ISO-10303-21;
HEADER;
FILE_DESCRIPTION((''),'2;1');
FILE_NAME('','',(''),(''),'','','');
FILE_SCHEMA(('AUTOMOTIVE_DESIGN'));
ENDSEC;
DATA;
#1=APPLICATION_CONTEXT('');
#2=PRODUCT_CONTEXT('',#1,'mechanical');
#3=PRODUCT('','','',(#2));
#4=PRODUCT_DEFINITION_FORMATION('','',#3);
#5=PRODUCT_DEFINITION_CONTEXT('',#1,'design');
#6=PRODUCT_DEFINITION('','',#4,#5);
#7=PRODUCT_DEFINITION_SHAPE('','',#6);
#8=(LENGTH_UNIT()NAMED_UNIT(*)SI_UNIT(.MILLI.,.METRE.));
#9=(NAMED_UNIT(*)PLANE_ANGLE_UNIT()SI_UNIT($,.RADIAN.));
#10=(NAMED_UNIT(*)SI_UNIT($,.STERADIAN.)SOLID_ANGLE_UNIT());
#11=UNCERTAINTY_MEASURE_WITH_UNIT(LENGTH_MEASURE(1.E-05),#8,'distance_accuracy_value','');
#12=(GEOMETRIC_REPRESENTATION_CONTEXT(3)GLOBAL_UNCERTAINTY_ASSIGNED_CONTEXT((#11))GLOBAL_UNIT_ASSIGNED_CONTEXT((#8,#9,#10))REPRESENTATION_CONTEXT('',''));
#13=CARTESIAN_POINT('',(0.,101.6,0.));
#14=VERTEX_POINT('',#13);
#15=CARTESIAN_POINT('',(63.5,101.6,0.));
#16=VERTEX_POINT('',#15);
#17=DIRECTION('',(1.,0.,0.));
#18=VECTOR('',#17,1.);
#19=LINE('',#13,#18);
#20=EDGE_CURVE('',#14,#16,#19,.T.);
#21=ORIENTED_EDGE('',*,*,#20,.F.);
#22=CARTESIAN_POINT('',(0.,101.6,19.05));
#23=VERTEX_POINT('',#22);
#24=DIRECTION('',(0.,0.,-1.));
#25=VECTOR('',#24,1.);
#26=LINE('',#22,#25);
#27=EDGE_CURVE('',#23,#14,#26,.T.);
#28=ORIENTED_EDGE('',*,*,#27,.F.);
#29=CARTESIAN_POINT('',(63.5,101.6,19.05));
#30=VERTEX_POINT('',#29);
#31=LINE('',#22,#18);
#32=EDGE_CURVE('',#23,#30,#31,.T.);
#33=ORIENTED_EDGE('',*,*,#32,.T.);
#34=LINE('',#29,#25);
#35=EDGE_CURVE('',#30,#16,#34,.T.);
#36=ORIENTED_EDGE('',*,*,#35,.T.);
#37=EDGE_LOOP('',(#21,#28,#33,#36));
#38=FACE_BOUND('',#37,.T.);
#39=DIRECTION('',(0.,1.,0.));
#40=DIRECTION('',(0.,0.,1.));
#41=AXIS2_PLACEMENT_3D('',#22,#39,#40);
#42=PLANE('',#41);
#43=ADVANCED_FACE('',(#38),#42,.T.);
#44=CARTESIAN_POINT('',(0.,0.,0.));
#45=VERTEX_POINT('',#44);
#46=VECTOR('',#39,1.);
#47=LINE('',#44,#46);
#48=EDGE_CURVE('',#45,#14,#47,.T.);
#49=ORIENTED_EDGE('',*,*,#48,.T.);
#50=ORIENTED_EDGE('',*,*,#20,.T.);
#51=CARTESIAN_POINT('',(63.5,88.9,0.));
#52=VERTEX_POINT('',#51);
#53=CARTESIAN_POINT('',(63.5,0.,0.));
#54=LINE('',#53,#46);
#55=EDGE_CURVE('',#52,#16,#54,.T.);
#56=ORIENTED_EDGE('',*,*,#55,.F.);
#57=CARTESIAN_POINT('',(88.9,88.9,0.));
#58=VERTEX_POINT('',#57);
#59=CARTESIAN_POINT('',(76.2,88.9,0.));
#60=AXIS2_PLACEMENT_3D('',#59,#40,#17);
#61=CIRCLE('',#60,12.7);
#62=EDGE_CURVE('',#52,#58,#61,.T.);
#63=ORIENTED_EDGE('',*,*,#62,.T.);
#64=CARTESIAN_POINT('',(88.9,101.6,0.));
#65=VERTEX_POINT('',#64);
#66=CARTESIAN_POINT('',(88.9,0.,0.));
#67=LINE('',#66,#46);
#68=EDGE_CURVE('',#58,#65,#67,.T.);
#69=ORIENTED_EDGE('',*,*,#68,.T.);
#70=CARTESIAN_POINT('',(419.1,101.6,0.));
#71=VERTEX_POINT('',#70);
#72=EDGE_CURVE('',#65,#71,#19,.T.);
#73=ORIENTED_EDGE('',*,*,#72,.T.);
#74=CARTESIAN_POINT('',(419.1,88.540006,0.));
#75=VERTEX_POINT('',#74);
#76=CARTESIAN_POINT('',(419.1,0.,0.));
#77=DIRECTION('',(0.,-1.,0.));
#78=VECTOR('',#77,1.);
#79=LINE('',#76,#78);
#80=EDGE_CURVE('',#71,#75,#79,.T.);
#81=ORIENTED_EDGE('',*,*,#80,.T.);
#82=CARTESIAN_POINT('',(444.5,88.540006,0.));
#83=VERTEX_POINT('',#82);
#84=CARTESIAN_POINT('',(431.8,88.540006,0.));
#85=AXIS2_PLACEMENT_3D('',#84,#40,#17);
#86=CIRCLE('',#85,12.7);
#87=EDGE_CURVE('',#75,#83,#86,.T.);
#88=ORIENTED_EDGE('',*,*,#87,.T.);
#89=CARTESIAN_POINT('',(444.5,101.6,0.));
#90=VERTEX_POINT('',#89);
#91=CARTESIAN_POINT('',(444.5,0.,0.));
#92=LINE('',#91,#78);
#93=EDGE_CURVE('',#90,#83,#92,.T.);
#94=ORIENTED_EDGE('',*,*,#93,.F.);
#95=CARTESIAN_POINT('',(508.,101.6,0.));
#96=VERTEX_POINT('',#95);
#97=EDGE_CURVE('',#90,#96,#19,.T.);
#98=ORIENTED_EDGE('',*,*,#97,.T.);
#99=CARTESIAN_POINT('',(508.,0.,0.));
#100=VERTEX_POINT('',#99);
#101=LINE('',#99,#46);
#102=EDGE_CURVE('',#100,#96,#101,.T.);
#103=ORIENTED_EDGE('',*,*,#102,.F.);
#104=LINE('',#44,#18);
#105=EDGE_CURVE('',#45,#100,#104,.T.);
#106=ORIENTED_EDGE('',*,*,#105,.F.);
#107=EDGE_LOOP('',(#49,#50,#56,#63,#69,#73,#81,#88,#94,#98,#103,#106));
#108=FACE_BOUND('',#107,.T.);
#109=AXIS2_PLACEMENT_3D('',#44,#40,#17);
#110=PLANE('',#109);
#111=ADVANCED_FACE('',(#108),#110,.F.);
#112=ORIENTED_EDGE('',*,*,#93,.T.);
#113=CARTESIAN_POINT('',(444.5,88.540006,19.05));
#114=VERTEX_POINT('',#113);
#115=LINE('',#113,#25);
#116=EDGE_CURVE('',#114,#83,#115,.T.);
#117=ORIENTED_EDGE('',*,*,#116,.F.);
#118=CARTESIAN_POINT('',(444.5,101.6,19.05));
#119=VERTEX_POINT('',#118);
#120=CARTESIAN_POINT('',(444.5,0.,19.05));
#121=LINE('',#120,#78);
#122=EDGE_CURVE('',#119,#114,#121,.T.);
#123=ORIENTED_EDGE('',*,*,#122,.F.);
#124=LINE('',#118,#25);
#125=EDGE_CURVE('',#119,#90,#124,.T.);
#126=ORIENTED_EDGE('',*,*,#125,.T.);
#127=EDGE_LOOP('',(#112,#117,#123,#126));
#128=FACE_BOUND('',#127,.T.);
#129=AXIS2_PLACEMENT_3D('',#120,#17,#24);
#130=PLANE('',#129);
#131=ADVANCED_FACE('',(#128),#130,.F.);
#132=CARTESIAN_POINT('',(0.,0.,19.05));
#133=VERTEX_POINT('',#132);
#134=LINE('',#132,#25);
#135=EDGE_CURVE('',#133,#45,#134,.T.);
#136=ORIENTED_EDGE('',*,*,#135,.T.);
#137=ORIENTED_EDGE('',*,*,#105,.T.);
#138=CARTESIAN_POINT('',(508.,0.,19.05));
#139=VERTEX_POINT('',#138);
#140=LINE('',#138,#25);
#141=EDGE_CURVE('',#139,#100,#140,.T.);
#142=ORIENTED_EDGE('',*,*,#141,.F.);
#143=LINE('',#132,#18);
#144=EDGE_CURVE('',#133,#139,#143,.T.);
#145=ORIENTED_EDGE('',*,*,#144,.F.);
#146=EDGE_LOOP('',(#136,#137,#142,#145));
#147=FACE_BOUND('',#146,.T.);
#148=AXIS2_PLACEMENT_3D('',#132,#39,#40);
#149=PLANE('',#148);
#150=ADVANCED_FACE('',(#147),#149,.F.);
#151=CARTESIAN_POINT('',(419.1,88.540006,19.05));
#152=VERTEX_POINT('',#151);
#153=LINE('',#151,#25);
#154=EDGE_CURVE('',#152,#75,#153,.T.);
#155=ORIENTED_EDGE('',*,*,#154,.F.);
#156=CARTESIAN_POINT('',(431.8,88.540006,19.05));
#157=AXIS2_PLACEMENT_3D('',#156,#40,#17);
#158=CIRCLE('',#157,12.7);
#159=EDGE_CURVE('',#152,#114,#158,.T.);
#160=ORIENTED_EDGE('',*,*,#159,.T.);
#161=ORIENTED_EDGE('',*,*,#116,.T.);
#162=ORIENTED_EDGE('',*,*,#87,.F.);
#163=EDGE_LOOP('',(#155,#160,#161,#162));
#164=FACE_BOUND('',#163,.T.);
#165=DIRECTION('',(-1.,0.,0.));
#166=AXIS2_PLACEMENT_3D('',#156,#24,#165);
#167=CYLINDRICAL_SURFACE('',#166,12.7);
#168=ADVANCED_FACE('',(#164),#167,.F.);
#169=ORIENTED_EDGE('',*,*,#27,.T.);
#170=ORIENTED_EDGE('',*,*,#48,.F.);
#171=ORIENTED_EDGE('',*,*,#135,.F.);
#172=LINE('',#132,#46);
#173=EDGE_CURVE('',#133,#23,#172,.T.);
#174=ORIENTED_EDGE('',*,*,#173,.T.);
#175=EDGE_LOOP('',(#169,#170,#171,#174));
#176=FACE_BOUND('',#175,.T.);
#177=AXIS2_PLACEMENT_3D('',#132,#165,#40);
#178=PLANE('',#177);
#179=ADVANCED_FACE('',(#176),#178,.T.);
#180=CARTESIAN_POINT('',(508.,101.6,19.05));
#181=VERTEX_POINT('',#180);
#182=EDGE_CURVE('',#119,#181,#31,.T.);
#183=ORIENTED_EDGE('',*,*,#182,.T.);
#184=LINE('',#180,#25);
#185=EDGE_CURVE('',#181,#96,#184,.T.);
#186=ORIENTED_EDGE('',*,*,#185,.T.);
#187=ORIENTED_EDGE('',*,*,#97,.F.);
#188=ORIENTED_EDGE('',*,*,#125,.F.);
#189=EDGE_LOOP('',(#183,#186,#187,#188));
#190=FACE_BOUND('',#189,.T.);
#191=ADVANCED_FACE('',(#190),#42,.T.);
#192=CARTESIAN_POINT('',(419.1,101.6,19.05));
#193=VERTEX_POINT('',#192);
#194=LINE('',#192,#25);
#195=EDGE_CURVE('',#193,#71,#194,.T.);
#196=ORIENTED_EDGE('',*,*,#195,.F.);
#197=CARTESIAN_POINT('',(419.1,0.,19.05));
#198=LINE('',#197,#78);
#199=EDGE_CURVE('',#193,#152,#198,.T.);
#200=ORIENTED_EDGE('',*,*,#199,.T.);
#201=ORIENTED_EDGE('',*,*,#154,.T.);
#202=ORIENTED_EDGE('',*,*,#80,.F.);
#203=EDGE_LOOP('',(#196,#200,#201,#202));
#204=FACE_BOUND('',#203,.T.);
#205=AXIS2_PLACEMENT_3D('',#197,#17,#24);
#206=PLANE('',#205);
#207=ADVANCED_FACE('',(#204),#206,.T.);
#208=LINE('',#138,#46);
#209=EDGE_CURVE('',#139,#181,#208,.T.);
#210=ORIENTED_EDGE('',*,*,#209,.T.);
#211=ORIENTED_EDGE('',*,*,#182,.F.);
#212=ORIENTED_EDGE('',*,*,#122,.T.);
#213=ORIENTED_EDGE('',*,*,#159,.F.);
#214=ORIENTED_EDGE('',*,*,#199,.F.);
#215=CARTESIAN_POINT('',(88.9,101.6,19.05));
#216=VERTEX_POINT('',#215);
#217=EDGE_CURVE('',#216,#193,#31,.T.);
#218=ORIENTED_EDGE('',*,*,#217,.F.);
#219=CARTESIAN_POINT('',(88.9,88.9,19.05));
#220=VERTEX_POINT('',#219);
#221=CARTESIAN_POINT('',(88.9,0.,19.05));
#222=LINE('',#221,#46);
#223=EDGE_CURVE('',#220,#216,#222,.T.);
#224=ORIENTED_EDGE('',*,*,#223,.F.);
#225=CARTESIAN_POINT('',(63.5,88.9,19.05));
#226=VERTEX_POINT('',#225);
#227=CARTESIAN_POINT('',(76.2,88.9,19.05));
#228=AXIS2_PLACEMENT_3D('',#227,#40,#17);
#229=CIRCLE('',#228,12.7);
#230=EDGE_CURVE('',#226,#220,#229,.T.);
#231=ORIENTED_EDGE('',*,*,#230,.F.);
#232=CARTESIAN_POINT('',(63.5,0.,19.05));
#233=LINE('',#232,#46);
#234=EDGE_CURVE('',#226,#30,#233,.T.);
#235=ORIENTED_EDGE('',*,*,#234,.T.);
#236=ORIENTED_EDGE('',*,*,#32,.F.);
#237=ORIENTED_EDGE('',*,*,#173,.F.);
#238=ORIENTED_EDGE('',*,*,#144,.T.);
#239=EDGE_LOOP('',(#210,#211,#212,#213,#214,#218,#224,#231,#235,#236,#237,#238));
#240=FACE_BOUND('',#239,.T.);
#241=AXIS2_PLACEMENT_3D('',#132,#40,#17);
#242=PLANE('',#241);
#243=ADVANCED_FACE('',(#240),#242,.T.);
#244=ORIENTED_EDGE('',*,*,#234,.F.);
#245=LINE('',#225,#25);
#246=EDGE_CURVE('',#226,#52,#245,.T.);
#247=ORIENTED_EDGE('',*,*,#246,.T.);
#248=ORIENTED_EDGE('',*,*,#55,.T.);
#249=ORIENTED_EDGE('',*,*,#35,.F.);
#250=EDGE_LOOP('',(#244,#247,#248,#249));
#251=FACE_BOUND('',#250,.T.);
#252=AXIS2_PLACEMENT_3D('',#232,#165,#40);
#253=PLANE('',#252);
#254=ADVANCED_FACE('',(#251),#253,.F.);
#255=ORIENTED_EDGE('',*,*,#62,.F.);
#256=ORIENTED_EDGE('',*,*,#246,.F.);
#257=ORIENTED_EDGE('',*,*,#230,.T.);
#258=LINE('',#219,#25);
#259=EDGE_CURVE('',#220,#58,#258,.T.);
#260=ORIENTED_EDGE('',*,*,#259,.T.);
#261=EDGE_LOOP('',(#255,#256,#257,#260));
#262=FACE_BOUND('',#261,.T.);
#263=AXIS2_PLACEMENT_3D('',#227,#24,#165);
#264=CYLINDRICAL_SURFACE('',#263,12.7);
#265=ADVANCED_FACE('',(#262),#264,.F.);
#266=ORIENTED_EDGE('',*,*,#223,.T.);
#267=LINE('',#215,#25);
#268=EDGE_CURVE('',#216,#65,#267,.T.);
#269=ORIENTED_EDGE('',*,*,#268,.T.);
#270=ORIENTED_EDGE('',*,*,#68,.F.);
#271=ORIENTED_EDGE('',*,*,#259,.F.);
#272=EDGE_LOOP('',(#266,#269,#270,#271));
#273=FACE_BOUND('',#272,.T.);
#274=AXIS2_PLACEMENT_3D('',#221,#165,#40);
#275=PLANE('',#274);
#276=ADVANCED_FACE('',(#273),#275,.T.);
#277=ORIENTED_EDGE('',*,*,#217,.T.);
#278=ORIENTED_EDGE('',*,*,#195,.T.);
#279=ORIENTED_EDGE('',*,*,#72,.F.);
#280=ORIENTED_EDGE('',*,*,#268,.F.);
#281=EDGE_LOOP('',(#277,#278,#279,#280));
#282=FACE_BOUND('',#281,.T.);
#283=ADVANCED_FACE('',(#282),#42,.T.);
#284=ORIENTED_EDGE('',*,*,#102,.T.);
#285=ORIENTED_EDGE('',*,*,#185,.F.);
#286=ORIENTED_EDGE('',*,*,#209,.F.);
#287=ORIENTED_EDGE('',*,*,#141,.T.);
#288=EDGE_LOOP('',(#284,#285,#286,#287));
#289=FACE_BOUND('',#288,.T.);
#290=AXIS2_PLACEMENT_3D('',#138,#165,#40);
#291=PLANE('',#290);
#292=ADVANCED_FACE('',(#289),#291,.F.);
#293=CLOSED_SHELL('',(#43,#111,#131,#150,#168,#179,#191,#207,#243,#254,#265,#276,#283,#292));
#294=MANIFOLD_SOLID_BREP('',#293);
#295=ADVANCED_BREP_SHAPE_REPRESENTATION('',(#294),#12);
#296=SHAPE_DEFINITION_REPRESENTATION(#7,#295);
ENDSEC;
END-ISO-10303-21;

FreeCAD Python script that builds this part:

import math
import FreeCAD as App
import Part
import Sketcher
from FreeCAD import Vector
Q = App.Units.Quantity

doc = App.newDocument("Part")
body = doc.addObject("PartDesign::Body", "Body")

sketch1 = body.newObject("Sketcher::SketchObject", "Sketch")
sketch1.AttachmentSupport = (doc.getObject("XY_Plane"), [""])
sketch1.MapMode = "FlatFace"
sketch1.addGeometry([
    Part.LineSegment(Vector(0, 102, 0), Vector(0, 0, 0)),
    Part.LineSegment(Vector(0, 0, 0), Vector(508, 0, 0)),
    Part.LineSegment(Vector(508, 0, 0), Vector(508, 102, 0)),
    Part.LineSegment(Vector(508, 102, 0), Vector(444, 102, 0)),
    Part.LineSegment(Vector(444, 102, 0), Vector(444, 89, 0)),
    Part.ArcOfCircle(Part.Circle(Vector(432, 89, 0), Vector(0, 0, 1), 13), math.radians(180), math.radians(360)),
    Part.LineSegment(Vector(419, 89, 0), Vector(419, 102, 0)),
    Part.LineSegment(Vector(419, 102, 0), Vector(89, 102, 0)),
    Part.LineSegment(Vector(89, 102, 0), Vector(89, 89, 0)),
    Part.ArcOfCircle(Part.Circle(Vector(76, 89, 0), Vector(0, 0, 1), 13), math.radians(180), math.radians(360)),
    Part.LineSegment(Vector(64, 89, 0), Vector(64, 102, 0)),
    Part.LineSegment(Vector(64, 102, 0), Vector(0, 102, 0)),
], False)
sketch1.addConstraint([
    Sketcher.Constraint("Coincident", 0, 2, 1, 1),
    Sketcher.Constraint("Coincident", 1, 2, 2, 1),
    Sketcher.Constraint("Coincident", 2, 2, 3, 1),
    Sketcher.Constraint("Coincident", 3, 2, 4, 1),
    Sketcher.Constraint("Tangent", 4, 2, 5, 2),
    Sketcher.Constraint("Tangent", 5, 1, 6, 1),
    Sketcher.Constraint("Coincident", 6, 2, 7, 1),
    Sketcher.Constraint("Coincident", 7, 2, 8, 1),
    Sketcher.Constraint("Tangent", 8, 2, 9, 2),
    Sketcher.Constraint("Tangent", 9, 1, 10, 1),
    Sketcher.Constraint("Coincident", 10, 2, 11, 1),
    Sketcher.Constraint("Coincident", 11, 2, 0, 1),
    Sketcher.Constraint("Vertical", 0),
    Sketcher.Constraint("Horizontal", 1),
    Sketcher.Constraint("Vertical", 2),
    Sketcher.Constraint("Horizontal", 3),
    Sketcher.Constraint("Vertical", 4),
    Sketcher.Constraint("Vertical", 6),
    Sketcher.Constraint("Horizontal", 7),
    Sketcher.Constraint("Vertical", 8),
    Sketcher.Constraint("Vertical", 10),
    Sketcher.Constraint("Horizontal", 11),
    Sketcher.Constraint("Coincident", 0, 2, -1, 1),
    Sketcher.Constraint("Equal", 5, 9),
    Sketcher.Constraint("Horizontal", 3, 2, 6, 2),
    Sketcher.Constraint("Horizontal", 7, 2, 10, 2),
    Sketcher.Constraint("Equal", 3, 11),
    Sketcher.Constraint("Radius", 5, Q("0.5 in")),
    Sketcher.Constraint("DistanceX", 1, 1, 1, 2, Q("20 in")),
    Sketcher.Constraint("DistanceX", 7, 2, 7, 1, Q("13 in")),
    Sketcher.Constraint("DistanceY", 0, 2, 0, 1, Q("4 in")),
    Sketcher.Constraint("DistanceY", 8, 2, 8, 1, Q("0.5 in")),
    Sketcher.Constraint("DistanceY", 4, 2, 4, 1, 13.059994),
])
pad1 = body.newObject("PartDesign::Pad", "Pad")
pad1.Profile = sketch1
pad1.Length = Q("0.75 in")

doc.recompute()
